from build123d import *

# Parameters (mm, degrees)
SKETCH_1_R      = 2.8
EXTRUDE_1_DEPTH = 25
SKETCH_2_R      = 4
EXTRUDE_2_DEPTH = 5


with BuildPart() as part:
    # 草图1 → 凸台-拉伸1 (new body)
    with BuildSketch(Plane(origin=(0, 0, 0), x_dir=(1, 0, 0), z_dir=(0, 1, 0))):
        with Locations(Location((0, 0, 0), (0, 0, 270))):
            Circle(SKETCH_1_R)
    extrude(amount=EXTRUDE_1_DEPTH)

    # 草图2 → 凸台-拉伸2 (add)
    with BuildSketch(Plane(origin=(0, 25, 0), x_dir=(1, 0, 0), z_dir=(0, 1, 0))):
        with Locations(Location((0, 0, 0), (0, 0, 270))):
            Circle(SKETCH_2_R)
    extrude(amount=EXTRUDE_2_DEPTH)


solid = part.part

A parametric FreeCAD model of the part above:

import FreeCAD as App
import Part
import Sketcher

doc = App.newDocument("Part")
body = doc.addObject("PartDesign::Body", "Body")

# Sketch on XZ plane
sketch1 = doc.addObject("Sketcher::SketchObject", "Sketch")
body.addObject(sketch1)
sketch1.AttachmentSupport = (doc.XZ_Plane, [""])
sketch1.MapMode = "FlatFace"
sketch1.addGeometry(Part.Circle(App.Vector(0, 0, 0), App.Vector(0, 0, 1), 2.8), False)
sketch1.addConstraint([
    Sketcher.Constraint("Coincident", 0, 3, -1, 1),
    Sketcher.Constraint("Diameter", 0, 5.6),
])
pad1 = doc.addObject("PartDesign::Pad", "Pad")
body.addObject(pad1)
pad1.Profile = sketch1
pad1.Length = 25
pad1.Reversed = True

# Sketch on XZ plane
sketch2 = doc.addObject("Sketcher::SketchObject", "Sketch001")
body.addObject(sketch2)
sketch2.AttachmentSupport = (doc.XZ_Plane, [""])
sketch2.MapMode = "FlatFace"
sketch2.AttachmentOffset = App.Placement(App.Vector(0, 0, -25), App.Rotation())
sketch2.addGeometry(Part.Circle(App.Vector(0, 0, 0), App.Vector(0, 0, 1), 4), False)
sketch2.addConstraint([
    Sketcher.Constraint("Coincident", 0, 3, -1, 1),
    Sketcher.Constraint("Diameter", 0, 8.0),
])
pad2 = doc.addObject("PartDesign::Pad", "Pad001")
body.addObject(pad2)
pad2.Profile = sketch2
pad2.Length = 5
pad2.Reversed = True

doc.recompute()
